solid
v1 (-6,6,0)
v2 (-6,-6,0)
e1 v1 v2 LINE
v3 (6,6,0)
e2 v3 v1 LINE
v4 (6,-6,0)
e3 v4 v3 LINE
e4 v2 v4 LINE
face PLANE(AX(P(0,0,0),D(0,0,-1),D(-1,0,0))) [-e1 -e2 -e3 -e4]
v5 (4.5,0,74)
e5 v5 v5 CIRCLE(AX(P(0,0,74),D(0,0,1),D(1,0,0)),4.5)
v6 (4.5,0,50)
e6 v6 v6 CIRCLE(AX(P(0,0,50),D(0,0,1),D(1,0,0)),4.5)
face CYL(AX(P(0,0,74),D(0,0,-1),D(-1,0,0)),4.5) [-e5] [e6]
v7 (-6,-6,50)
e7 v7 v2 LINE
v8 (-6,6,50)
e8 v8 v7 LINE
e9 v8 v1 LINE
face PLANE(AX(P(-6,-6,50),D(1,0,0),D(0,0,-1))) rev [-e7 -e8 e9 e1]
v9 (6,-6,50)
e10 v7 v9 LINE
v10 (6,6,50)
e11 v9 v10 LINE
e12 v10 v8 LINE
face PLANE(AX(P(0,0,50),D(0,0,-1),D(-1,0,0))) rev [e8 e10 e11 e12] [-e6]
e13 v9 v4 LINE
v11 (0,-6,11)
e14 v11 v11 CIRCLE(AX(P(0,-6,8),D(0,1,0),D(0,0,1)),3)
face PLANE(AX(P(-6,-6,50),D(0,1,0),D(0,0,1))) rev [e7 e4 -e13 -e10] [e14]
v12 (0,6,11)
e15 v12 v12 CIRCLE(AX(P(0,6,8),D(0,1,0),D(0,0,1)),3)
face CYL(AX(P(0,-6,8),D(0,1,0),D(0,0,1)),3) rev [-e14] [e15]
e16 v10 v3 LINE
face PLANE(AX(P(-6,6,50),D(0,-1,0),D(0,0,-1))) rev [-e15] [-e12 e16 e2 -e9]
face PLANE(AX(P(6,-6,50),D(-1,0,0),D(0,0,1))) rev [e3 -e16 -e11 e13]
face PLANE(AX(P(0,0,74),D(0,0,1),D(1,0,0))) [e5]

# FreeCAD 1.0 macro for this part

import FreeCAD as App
import Part
import Sketcher
from FreeCAD import Vector

doc = App.newDocument("Part")
body = doc.addObject("PartDesign::Body", "Body")

sketch1 = body.newObject("Sketcher::SketchObject", "Sketch")
sketch1.AttachmentSupport = (doc.getObject("XY_Plane"), [""])
sketch1.MapMode = "FlatFace"
sketch1.addGeometry([
    Part.LineSegment(Vector(-6, 6, 0), Vector(-6, -6, 0)),
    Part.LineSegment(Vector(-6, -6, 0), Vector(6, -6, 0)),
    Part.LineSegment(Vector(6, -6, 0), Vector(6, 6, 0)),
    Part.LineSegment(Vector(6, 6, 0), Vector(-6, 6, 0)),
], False)
sketch1.addConstraint([
    Sketcher.Constraint("Coincident", 0, 2, 1, 1),
    Sketcher.Constraint("Coincident", 1, 2, 2, 1),
    Sketcher.Constraint("Coincident", 2, 2, 3, 1),
    Sketcher.Constraint("Coincident", 3, 2, 0, 1),
    Sketcher.Constraint("Vertical", 0),
    Sketcher.Constraint("Horizontal", 1),
    Sketcher.Constraint("Vertical", 2),
    Sketcher.Constraint("Horizontal", 3),
    Sketcher.Constraint("Symmetric", 0, 2, 2, 2, -1, 1),
    Sketcher.Constraint("Equal", 3, 0),
    Sketcher.Constraint("DistanceX", 1, 1, 1, 2, 12.0),
])
pad1 = body.newObject("PartDesign::Pad", "Pad")
pad1.Profile = sketch1
pad1.Length = 50

sketch2 = body.newObject("Sketcher::SketchObject", "Sketch001")
sketch2.AttachmentSupport = (doc.getObject("XY_Plane"), [""])
sketch2.MapMode = "FlatFace"
sketch2.AttachmentOffset = App.Placement(Vector(0, 0, 50), App.Rotation())
sketch2.addGeometry(Part.Circle(Vector(0, 0, 0), Vector(0, 0, 1), 4.5), False)
sketch2.addConstraint([
    Sketcher.Constraint("Coincident", 0, 3, -1, 1),
    Sketcher.Constraint("Diameter", 0, 9.0),
])
pad2 = body.newObject("PartDesign::Pad", "Pad001")
pad2.Profile = sketch2
pad2.Length = 24

sketch3 = body.newObject("Sketcher::SketchObject", "Sketch002")
sketch3.AttachmentSupport = (doc.getObject("XZ_Plane"), [""])
sketch3.MapMode = "FlatFace"
sketch3.AttachmentOffset = App.Placement(Vector(0, 0, -6), App.Rotation())
sketch3.addGeometry(Part.Circle(Vector(0, 8, 0), Vector(0, 0, 1), 3), False)
sketch3.addConstraint([
    Sketcher.Constraint("PointOnObject", 0, 3, -2),
    Sketcher.Constraint("Diameter", 0, 6.0),
    Sketcher.Constraint("DistanceY", -1, 1, 0, 3, 8.0),
])
pocket1 = body.newObject("PartDesign::Pocket", "Pocket")
pocket1.Profile = sketch3
pocket1.Type = "ThroughAll"
pocket1.Reversed = True

doc.recompute()
